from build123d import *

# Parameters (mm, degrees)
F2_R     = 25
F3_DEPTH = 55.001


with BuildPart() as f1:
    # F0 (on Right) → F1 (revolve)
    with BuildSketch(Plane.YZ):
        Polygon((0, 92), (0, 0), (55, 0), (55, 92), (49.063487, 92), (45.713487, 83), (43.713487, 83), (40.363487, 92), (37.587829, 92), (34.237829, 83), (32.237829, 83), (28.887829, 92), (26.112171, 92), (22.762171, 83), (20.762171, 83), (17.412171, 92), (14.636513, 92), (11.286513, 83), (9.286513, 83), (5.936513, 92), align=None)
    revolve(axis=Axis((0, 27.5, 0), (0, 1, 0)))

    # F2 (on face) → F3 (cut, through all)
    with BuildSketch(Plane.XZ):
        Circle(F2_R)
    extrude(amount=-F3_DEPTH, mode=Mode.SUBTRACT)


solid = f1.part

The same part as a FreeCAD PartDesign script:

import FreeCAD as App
import Part
import Sketcher

doc = App.newDocument("Part")
body = doc.addObject("PartDesign::Body", "Body")

# Sketch on YZ plane
sketch1 = body.newObject("Sketcher::SketchObject", "Sketch")
sketch1.AttachmentSupport = (doc.getObject("YZ_Plane"), [""])
sketch1.MapMode = "FlatFace"
sketch1.addGeometry([
    Part.LineSegment(App.Vector(0, 92, 0), App.Vector(0, 0, 0)),  # 0
    Part.LineSegment(App.Vector(0, 0, 0), App.Vector(55, 0, 0)),  # 1
    Part.LineSegment(App.Vector(55, 0, 0), App.Vector(55, 92, 0)),  # 2
    Part.LineSegment(App.Vector(55, 92, 0), App.Vector(49.1, 92, 0)),  # 3
    Part.LineSegment(App.Vector(49.1, 92, 0), App.Vector(45.7, 83, 0)),  # 4
    Part.LineSegment(App.Vector(45.7, 83, 0), App.Vector(43.7, 83, 0)),  # 5
    Part.LineSegment(App.Vector(43.7, 83, 0), App.Vector(40.4, 92, 0)),  # 6
    Part.LineSegment(App.Vector(40.4, 92, 0), App.Vector(37.6, 92, 0)),  # 7
    Part.LineSegment(App.Vector(37.6, 92, 0), App.Vector(34.2, 83, 0)),  # 8
    Part.LineSegment(App.Vector(34.2, 83, 0), App.Vector(32.2, 83, 0)),  # 9
    Part.LineSegment(App.Vector(32.2, 83, 0), App.Vector(28.9, 92, 0)),  # 10
    Part.LineSegment(App.Vector(28.9, 92, 0), App.Vector(26.1, 92, 0)),  # 11
    Part.LineSegment(App.Vector(26.1, 92, 0), App.Vector(22.8, 83, 0)),  # 12
    Part.LineSegment(App.Vector(22.8, 83, 0), App.Vector(20.8, 83, 0)),  # 13
    Part.LineSegment(App.Vector(20.8, 83, 0), App.Vector(17.4, 92, 0)),  # 14
    Part.LineSegment(App.Vector(17.4, 92, 0), App.Vector(14.6, 92, 0)),  # 15
    Part.LineSegment(App.Vector(14.6, 92, 0), App.Vector(11.3, 83, 0)),  # 16
    Part.LineSegment(App.Vector(11.3, 83, 0), App.Vector(9.3, 83, 0)),  # 17
    Part.LineSegment(App.Vector(9.3, 83, 0), App.Vector(5.9, 92, 0)),  # 18
    Part.LineSegment(App.Vector(5.9, 92, 0), App.Vector(0, 92, 0)),  # 19
], False)
sketch1.addConstraint([
    Sketcher.Constraint("Coincident", 0, 2, 1, 1),
    Sketcher.Constraint("Coincident", 1, 2, 2, 1),
    Sketcher.Constraint("Coincident", 2, 2, 3, 1),
    Sketcher.Constraint("Coincident", 3, 2, 4, 1),
    Sketcher.Constraint("Coincident", 4, 2, 5, 1),
    Sketcher.Constraint("Coincident", 5, 2, 6, 1),
    Sketcher.Constraint("Coincident", 6, 2, 7, 1),
    Sketcher.Constraint("Coincident", 7, 2, 8, 1),
    Sketcher.Constraint("Coincident", 8, 2, 9, 1),
    Sketcher.Constraint("Coincident", 9, 2, 10, 1),
    Sketcher.Constraint("Coincident", 10, 2, 11, 1),
    Sketcher.Constraint("Coincident", 11, 2, 12, 1),
    Sketcher.Constraint("Coincident", 12, 2, 13, 1),
    Sketcher.Constraint("Coincident", 13, 2, 14, 1),
    Sketcher.Constraint("Coincident", 14, 2, 15, 1),
    Sketcher.Constraint("Coincident", 15, 2, 16, 1),
    Sketcher.Constraint("Coincident", 16, 2, 17, 1),
    Sketcher.Constraint("Coincident", 17, 2, 18, 1),
    Sketcher.Constraint("Coincident", 18, 2, 19, 1),
    Sketcher.Constraint("Coincident", 19, 2, 0, 1),
    Sketcher.Constraint("Vertical", 0),
    Sketcher.Constraint("Horizontal", 1),
    Sketcher.Constraint("Vertical", 2),
    Sketcher.Constraint("Horizontal", 3),
    Sketcher.Constraint("Horizontal", 5),
    Sketcher.Constraint("Horizontal", 7),
    Sketcher.Constraint("Horizontal", 9),
    Sketcher.Constraint("Horizontal", 11),
    Sketcher.Constraint("Horizontal", 13),
    Sketcher.Constraint("Horizontal", 15),
    Sketcher.Constraint("Horizontal", 17),
    Sketcher.Constraint("Horizontal", 19),
    Sketcher.Constraint("Coincident", 0, 2, -1, 1),
    Sketcher.Constraint("Parallel", 4, 8),
    Sketcher.Constraint("Parallel", 6, 10),
    Sketcher.Constraint("Parallel", 8, 12),
    Sketcher.Constraint("Parallel", 10, 14),
    Sketcher.Constraint("Parallel", 12, 16),
    Sketcher.Constraint("Parallel", 14, 18),
    Sketcher.Constraint("Horizontal", 3, 2, 6, 2),
    Sketcher.Constraint("Horizontal", 5, 2, 8, 2),
    Sketcher.Constraint("Horizontal", 7, 2, 10, 2),
    Sketcher.Constraint("Horizontal", 9, 2, 12, 2),
    Sketcher.Constraint("Horizontal", 11, 2, 14, 2),
    Sketcher.Constraint("Horizontal", 13, 2, 16, 2),
    Sketcher.Constraint("Horizontal", 15, 2, 18, 2),
    Sketcher.Constraint("Equal", 5, 9),
    Sketcher.Constraint("Equal", 7, 11),
    Sketcher.Constraint("Equal", 9, 13),
    Sketcher.Constraint("Equal", 11, 15),
    Sketcher.Constraint("Equal", 13, 17),
    Sketcher.Constraint("Equal", 3, 19),
    Sketcher.Constraint("Equal", 4, 6),
    Sketcher.Constraint("DistanceX", 1, 1, 1, 2, 55.0),
    Sketcher.Constraint("DistanceX", 5, 2, 5, 1, 2.0),
    Sketcher.Constraint("DistanceY", 0, 2, 0, 1, 92.0),
    Sketcher.Constraint("DistanceY", -1, 1, 4, 2, 83.0),
    Sketcher.Constraint("DistanceX", 6, 2, 3, 2, 8.7),
    Sketcher.Constraint("DistanceX", 7, 2, 7, 1, 2.775658),
])
revolution = body.newObject("PartDesign::Revolution", "Revolution")
revolution.Profile = sketch1
revolution.ReferenceAxis = (sketch1, ["H_Axis"])
revolution.Angle = 360

# Sketch on XZ plane
sketch2 = body.newObject("Sketcher::SketchObject", "Sketch001")
sketch2.AttachmentSupport = (doc.getObject("XZ_Plane"), [""])
sketch2.MapMode = "FlatFace"
sketch2.addGeometry(Part.Circle(App.Vector(0, 0, 0), App.Vector(0, 0, 1), 25), False)
sketch2.addConstraint([
    Sketcher.Constraint("Coincident", 0, 3, -1, 1),
    Sketcher.Constraint("Diameter", 0, 50.0),
])
pocket1 = body.newObject("PartDesign::Pocket", "Pocket")
pocket1.Profile = sketch2
pocket1.Type = "ThroughAll"

doc.recompute()
